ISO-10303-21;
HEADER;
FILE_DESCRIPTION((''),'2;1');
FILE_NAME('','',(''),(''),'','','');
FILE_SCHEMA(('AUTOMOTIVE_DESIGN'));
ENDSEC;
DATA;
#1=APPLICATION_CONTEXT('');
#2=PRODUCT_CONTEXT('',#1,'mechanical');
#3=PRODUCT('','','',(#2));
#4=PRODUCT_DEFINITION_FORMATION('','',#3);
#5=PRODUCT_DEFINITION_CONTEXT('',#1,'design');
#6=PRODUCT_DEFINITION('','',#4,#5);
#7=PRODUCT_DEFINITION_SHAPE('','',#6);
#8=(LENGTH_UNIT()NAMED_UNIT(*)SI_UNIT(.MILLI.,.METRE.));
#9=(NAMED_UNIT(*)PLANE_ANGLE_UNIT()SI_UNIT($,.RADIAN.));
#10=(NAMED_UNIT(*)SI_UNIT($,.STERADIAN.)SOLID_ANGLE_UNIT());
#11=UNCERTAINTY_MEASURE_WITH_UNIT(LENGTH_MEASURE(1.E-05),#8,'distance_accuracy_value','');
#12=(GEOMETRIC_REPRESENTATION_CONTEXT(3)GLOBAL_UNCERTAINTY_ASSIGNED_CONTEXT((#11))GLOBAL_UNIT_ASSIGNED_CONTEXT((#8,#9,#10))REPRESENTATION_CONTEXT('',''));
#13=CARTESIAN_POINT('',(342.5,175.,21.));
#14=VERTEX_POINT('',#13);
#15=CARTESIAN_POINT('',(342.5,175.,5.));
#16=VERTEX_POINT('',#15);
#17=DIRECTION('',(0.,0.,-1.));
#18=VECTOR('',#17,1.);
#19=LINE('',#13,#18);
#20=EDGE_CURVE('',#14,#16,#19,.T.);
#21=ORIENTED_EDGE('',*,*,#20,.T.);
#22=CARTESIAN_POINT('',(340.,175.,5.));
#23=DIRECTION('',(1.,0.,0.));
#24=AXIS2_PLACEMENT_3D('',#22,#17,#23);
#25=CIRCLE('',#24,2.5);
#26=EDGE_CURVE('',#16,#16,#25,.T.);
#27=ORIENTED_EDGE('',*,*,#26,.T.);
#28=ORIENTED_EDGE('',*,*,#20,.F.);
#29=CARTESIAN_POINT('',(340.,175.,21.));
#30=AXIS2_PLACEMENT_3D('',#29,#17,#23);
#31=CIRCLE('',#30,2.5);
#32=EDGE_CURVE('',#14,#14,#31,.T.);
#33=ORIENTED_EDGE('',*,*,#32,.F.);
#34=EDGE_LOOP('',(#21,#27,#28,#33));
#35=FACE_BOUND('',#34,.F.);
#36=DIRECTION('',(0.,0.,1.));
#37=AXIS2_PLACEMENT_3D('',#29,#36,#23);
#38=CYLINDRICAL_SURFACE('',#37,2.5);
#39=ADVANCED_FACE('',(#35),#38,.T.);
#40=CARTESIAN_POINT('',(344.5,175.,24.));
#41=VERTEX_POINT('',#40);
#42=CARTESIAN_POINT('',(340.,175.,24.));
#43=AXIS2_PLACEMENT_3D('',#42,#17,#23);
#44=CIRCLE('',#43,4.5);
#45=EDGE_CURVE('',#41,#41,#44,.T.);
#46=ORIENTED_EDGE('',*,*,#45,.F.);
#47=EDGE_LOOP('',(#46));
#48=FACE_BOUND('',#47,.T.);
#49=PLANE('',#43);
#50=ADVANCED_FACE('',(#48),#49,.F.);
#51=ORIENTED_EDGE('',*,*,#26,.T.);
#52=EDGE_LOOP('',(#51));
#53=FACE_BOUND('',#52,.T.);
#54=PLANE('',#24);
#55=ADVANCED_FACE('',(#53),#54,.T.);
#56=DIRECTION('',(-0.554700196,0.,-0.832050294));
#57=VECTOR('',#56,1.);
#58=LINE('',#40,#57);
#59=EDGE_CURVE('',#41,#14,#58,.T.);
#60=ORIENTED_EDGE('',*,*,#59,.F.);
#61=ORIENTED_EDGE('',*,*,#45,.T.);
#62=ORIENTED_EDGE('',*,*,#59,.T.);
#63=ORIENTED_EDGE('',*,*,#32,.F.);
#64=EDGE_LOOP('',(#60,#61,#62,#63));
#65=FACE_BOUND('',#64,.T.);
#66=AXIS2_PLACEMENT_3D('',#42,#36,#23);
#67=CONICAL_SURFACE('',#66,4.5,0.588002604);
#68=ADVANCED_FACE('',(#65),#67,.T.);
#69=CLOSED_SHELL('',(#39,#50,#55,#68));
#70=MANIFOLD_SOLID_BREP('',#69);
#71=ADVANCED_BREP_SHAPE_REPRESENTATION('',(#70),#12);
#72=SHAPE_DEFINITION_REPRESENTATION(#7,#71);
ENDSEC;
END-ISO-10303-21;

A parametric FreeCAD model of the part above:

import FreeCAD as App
import Part
import Sketcher
from FreeCAD import Vector
Q = App.Units.Quantity

doc = App.newDocument("Part")
body = doc.addObject("PartDesign::Body", "Body")

# Sketch on XZ plane
sketch1 = body.newObject("Sketcher::SketchObject", "Sketch")
sketch1.AttachmentSupport = (doc.getObject("XZ_Plane"), [""])
sketch1.MapMode = "FlatFace"
sketch1.addGeometry(Part.LineSegment(Vector(0, -3, 0), Vector(4.5, -3, 0)), False)
sketch1.addGeometry(Part.LineSegment(Vector(4.5, -3, 0), Vector(2.5, 0, 0)), False)
sketch1.addGeometry(Part.LineSegment(Vector(2.5, 0, 0), Vector(0, 0, 0)), False)
sketch1.addGeometry(Part.LineSegment(Vector(0, 0, 0), Vector(0, -3, 0)), False)
sketch1.addConstraint(Sketcher.Constraint("Coincident", 0, 2, 1, 1))
sketch1.addConstraint(Sketcher.Constraint("Coincident", 1, 2, 2, 1))
sketch1.addConstraint(Sketcher.Constraint("Coincident", 2, 2, 3, 1))
sketch1.addConstraint(Sketcher.Constraint("Coincident", 3, 2, 0, 1))
sketch1.addConstraint(Sketcher.Constraint("Horizontal", 0))
sketch1.addConstraint(Sketcher.Constraint("Horizontal", 2))
sketch1.addConstraint(Sketcher.Constraint("Vertical", 3))
sketch1.addConstraint(Sketcher.Constraint("Coincident", 2, 2, -1, 1))
sketch1.addConstraint(Sketcher.Constraint("DistanceY", 3, 2, 3, 1, Q("3 mm")))
sketch1.addConstraint(Sketcher.Constraint("DistanceX", 0, 1, 0, 2, Q("4.5 mm")))
sketch1.addConstraint(Sketcher.Constraint("DistanceX", 2, 2, 2, 1, Q("2.5 mm")))
revolution = body.newObject("PartDesign::Revolution", "Revolution")
revolution.Profile = sketch1
revolution.ReferenceAxis = (sketch1, ["V_Axis"])
revolution.Angle = 360
body2 = doc.addObject("PartDesign::Body", "Body001")

# Sketch on XY plane
sketch2 = body2.newObject("Sketcher::SketchObject", "Sketch001")
sketch2.AttachmentSupport = (doc.getObject("XY_Plane001"), [""])
sketch2.MapMode = "FlatFace"
sketch2.addGeometry(Part.Circle(Vector(0, 0, 0), Vector(0, 0, 1), 2.5), False)
sketch2.addConstraint(Sketcher.Constraint("Coincident", 0, 3, -1, 1))
sketch2.addConstraint(Sketcher.Constraint("Diameter", 0, Q("5 mm")))
pad1 = body2.newObject("PartDesign::Pad", "Pad")
pad1.Profile = sketch2
pad1.Length = 16
doc.recompute()

boolean = body2.newObject("PartDesign::Boolean", "Boolean")
boolean.Type = "Fuse"
boolean.addObjects([body])
body3 = doc.addObject("PartDesign::Body", "Body002")
doc.recompute()

body2.Placement = App.Placement(Vector(45, 15, 21), App.Rotation(Vector(0, 1, 0), 180))
boolean2 = body3.newObject("PartDesign::Boolean", "Boolean001")
boolean2.Type = "Fuse"
boolean2.addObjects([body2])
body4 = doc.addObject("PartDesign::Body", "Body003")
doc.recompute()

body3.Placement = App.Placement(Vector(115, 190, 0), App.Rotation(Vector(0, 0, 1), 180))
boolean3 = body4.newObject("PartDesign::Boolean", "Boolean002")
boolean3.Type = "Fuse"
boolean3.addObjects([body3])
body5 = doc.addObject("PartDesign::Body", "Body004")
doc.recompute()

body4.Placement = App.Placement(Vector(270, 0, 0), App.Rotation(Vector(0, 0, 1), 0))
boolean4 = body5.newObject("PartDesign::Boolean", "Boolean003")
boolean4.Type = "Fuse"
boolean4.addObjects([body4])

doc.recompute()
